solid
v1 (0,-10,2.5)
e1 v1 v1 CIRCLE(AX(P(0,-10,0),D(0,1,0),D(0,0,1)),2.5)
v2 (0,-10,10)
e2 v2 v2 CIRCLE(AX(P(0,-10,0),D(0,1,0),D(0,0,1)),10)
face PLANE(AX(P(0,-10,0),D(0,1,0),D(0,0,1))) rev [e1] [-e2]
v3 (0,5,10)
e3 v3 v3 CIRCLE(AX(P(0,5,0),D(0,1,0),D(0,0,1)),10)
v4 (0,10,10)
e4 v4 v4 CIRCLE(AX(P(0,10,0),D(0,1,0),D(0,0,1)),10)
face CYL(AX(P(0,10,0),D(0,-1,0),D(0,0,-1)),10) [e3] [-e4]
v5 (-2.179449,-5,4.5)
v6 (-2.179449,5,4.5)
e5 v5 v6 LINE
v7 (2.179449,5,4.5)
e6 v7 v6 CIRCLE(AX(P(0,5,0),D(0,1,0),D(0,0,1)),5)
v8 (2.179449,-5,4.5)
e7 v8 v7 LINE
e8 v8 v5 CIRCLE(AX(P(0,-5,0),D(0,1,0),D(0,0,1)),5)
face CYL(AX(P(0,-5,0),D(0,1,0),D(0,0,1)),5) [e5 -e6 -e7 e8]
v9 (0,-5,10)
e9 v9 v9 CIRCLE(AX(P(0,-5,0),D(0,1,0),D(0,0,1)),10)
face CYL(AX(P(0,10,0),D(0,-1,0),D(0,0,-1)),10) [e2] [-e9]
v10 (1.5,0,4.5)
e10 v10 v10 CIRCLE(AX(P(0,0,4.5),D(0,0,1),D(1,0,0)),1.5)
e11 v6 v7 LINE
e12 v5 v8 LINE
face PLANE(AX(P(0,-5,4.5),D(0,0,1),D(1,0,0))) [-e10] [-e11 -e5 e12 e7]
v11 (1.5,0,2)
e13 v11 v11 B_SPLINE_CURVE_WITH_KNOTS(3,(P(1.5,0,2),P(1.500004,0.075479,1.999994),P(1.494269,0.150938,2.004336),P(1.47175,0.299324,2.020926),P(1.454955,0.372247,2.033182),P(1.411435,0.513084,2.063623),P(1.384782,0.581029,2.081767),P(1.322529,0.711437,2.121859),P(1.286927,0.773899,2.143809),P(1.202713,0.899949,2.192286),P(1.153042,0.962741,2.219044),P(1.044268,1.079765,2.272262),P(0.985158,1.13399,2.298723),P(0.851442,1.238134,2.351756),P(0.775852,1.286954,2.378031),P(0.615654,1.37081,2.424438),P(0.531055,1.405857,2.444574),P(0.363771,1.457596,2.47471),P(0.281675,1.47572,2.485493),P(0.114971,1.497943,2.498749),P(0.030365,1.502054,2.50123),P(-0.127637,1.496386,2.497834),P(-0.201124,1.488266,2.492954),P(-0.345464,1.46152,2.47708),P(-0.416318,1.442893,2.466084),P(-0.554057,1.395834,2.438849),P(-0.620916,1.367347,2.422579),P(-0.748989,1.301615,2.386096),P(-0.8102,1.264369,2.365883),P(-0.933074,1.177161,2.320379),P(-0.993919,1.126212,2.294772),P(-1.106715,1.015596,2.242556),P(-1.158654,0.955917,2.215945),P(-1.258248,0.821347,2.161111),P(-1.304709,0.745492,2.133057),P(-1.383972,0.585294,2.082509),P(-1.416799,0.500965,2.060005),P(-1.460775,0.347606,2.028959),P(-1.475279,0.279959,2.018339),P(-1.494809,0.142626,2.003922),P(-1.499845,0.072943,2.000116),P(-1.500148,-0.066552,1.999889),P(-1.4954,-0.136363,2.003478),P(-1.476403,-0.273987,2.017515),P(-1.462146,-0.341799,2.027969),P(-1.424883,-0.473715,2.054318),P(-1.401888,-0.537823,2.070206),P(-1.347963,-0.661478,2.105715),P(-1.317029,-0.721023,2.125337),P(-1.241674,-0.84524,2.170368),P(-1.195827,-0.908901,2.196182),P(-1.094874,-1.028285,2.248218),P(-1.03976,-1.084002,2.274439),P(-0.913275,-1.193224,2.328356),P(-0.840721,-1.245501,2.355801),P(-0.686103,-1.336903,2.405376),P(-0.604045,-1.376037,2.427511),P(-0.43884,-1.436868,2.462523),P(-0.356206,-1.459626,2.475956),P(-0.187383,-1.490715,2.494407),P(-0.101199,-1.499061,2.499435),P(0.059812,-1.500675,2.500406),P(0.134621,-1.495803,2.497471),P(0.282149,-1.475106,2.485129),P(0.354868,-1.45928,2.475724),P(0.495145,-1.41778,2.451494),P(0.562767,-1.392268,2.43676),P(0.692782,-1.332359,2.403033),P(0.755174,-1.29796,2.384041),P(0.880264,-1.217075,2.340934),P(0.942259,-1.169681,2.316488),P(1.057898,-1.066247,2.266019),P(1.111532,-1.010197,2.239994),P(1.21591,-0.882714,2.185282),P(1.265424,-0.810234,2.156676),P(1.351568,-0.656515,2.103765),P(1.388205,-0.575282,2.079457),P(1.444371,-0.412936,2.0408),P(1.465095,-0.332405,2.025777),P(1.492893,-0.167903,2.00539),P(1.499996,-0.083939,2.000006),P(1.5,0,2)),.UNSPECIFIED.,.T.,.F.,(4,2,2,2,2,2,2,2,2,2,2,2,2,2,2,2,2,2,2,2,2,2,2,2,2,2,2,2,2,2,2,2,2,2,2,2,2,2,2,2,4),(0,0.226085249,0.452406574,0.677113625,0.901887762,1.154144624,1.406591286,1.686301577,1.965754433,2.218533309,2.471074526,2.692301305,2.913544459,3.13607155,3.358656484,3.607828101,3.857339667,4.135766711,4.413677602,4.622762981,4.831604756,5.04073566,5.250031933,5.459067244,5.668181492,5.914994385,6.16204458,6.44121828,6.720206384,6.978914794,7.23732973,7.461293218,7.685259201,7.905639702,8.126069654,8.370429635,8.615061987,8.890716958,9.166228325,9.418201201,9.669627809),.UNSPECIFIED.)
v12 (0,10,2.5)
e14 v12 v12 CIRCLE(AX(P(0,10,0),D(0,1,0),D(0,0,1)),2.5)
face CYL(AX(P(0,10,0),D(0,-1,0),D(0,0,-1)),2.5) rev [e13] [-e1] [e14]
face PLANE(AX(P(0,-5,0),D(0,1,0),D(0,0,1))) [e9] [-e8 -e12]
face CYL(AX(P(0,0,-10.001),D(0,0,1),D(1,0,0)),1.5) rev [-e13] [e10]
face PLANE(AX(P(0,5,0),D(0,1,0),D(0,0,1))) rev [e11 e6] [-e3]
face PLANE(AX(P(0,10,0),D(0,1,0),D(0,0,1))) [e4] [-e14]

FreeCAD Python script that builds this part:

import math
import FreeCAD as App
import Part
import Sketcher

V = App.Vector
Q = App.Units.Quantity

doc = App.newDocument("Part")
body = doc.addObject("PartDesign::Body", "Body")

sketch1 = body.newObject("Sketcher::SketchObject", "Sketch")
sketch1.AttachmentSupport = (doc.getObject("XZ_Plane"), [""])
sketch1.MapMode = "FlatFace"
sketch1.addGeometry(Part.Circle(V(0, 0, 0), V(0, 0, 1), 10), False)
sketch1.addGeometry(Part.Circle(V(0, 0, 0), V(0, 0, 1), 2.5), False)
sketch1.addConstraint(Sketcher.Constraint("Coincident", 0, 3, -1, 1))
sketch1.addConstraint(Sketcher.Constraint("Coincident", 1, 3, -1, 1))
sketch1.addConstraint(Sketcher.Constraint("Diameter", 0, Q("20 mm")))
sketch1.addConstraint(Sketcher.Constraint("Diameter", 1, Q("5 mm")))
pad1 = body.newObject("PartDesign::Pad", "Pad")
pad1.Profile = sketch1
pad1.Length = 20
pad1.Midplane = True

sketch2 = body.newObject("Sketcher::SketchObject", "Sketch001")
sketch2.AttachmentSupport = (doc.getObject("XZ_Plane"), [""])
sketch2.MapMode = "FlatFace"
sketch2.addGeometry(Part.Circle(V(0, 0, 0), V(0, 0, 1), 10), False)
sketch2.addGeometry(Part.ArcOfCircle(Part.Circle(V(0, 0, 0), V(0, 0, 1), 5), math.radians(116), math.radians(424)), False)
sketch2.addGeometry(Part.LineSegment(V(2.2, 4.5, 0), V(-2.2, 4.5, 0)), False)
sketch2.addConstraint(Sketcher.Constraint("Coincident", 1, 1, 2, 2))
sketch2.addConstraint(Sketcher.Constraint("Coincident", 2, 1, 1, 2))
sketch2.addConstraint(Sketcher.Constraint("Horizontal", 2))
sketch2.addConstraint(Sketcher.Constraint("Coincident", 0, 3, -1, 1))
sketch2.addConstraint(Sketcher.Constraint("Coincident", 1, 3, -1, 1))
sketch2.addConstraint(Sketcher.Constraint("Diameter", 0, Q("20 mm")))
sketch2.addConstraint(Sketcher.Constraint("Radius", 1, Q("5 mm")))
sketch2.addConstraint(Sketcher.Constraint("DistanceY", -1, 1, 1, 1, Q("4.5 mm")))
pocket1 = body.newObject("PartDesign::Pocket", "Pocket")
pocket1.Profile = sketch2
pocket1.Length = 10
pocket1.Midplane = True

sketch3 = body.newObject("Sketcher::SketchObject", "Sketch002")
sketch3.AttachmentSupport = (doc.getObject("XY_Plane"), [""])
sketch3.MapMode = "FlatFace"
sketch3.AttachmentOffset = App.Placement(V(0, 0, 4.5), App.Rotation())
sketch3.addGeometry(Part.Circle(V(0, 0, 0), V(0, 0, 1), 1.5), False)
sketch3.addConstraint(Sketcher.Constraint("Coincident", 0, 3, -1, 1))
sketch3.addConstraint(Sketcher.Constraint("Diameter", 0, Q("3 mm")))
pocket2 = body.newObject("PartDesign::Pocket", "Pocket001")
pocket2.Profile = sketch3
pocket2.Type = "UpToFirst"

doc.recompute()
